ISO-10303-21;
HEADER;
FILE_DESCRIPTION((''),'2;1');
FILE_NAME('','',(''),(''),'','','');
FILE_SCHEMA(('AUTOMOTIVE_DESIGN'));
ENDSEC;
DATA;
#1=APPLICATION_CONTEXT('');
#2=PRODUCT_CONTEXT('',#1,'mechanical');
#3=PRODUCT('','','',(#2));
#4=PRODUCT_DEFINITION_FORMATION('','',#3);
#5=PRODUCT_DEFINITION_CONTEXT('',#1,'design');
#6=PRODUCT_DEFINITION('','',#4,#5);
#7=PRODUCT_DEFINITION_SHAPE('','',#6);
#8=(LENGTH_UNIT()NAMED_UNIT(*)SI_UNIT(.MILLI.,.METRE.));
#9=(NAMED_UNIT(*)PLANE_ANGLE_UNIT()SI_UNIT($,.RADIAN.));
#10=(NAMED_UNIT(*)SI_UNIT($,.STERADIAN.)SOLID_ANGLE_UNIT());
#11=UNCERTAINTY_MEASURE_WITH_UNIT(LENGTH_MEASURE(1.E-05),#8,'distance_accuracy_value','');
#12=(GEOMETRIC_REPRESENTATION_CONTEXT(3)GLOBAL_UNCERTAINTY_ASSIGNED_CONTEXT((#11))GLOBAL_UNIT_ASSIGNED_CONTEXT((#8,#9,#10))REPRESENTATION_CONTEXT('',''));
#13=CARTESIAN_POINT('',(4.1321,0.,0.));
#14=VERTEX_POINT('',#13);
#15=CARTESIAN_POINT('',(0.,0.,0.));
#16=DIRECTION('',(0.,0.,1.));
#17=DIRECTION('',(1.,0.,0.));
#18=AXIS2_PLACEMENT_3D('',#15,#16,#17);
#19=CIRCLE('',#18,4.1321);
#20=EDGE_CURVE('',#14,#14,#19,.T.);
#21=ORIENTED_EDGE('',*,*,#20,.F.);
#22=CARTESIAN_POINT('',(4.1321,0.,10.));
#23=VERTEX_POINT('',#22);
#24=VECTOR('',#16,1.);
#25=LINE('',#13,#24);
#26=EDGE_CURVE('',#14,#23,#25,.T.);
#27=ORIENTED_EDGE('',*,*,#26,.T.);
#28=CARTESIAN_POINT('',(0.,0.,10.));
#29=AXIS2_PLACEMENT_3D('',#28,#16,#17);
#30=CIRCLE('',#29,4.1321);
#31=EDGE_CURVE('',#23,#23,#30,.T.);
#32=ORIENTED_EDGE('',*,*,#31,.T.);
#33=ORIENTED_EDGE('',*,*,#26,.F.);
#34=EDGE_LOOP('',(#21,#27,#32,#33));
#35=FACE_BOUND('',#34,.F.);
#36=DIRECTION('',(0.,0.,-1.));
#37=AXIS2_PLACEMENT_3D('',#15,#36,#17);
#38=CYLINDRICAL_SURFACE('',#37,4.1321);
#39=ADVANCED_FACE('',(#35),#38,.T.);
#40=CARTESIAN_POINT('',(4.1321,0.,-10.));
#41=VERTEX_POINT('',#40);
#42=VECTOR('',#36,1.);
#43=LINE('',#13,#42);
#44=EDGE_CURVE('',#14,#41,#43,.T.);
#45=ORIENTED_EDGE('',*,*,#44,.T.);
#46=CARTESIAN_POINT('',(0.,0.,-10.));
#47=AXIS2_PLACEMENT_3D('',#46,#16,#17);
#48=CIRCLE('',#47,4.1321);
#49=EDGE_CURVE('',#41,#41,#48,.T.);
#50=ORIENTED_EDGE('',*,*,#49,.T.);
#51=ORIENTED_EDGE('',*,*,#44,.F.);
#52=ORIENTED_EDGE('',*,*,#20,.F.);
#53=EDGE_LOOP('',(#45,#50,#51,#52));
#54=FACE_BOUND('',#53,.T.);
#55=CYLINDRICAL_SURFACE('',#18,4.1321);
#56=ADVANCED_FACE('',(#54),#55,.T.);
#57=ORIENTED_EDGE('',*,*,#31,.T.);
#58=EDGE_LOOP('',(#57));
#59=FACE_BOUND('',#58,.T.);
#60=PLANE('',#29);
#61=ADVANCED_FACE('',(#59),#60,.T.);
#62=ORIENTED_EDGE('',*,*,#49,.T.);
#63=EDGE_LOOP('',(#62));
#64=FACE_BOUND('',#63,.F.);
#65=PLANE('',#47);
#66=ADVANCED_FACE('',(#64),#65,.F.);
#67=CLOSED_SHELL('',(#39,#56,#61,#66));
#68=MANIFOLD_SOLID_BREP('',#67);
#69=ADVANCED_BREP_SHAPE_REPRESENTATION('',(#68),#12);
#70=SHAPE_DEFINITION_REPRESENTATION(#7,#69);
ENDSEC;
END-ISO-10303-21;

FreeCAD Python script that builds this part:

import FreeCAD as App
import Part
import Sketcher

doc = App.newDocument("Part")
body = doc.addObject("PartDesign::Body", "Body")

# Sketch on XY plane
sketch1 = body.newObject("Sketcher::SketchObject", "Sketch")
sketch1.AttachmentSupport = (doc.getObject("XY_Plane"), [""])
sketch1.MapMode = "FlatFace"
sketch1.addGeometry(Part.Circle(App.Vector(0, 0, 0), App.Vector(0, 0, 1), 4.1), False)
sketch1.addConstraint(Sketcher.Constraint("Coincident", 0, 3, -1, 1))
sketch1.addConstraint(Sketcher.Constraint("Diameter", 0, 8.2642))
pad1 = body.newObject("PartDesign::Pad", "Pad")
pad1.Profile = sketch1
pad1.Length = 20
pad1.Midplane = True

doc.recompute()
